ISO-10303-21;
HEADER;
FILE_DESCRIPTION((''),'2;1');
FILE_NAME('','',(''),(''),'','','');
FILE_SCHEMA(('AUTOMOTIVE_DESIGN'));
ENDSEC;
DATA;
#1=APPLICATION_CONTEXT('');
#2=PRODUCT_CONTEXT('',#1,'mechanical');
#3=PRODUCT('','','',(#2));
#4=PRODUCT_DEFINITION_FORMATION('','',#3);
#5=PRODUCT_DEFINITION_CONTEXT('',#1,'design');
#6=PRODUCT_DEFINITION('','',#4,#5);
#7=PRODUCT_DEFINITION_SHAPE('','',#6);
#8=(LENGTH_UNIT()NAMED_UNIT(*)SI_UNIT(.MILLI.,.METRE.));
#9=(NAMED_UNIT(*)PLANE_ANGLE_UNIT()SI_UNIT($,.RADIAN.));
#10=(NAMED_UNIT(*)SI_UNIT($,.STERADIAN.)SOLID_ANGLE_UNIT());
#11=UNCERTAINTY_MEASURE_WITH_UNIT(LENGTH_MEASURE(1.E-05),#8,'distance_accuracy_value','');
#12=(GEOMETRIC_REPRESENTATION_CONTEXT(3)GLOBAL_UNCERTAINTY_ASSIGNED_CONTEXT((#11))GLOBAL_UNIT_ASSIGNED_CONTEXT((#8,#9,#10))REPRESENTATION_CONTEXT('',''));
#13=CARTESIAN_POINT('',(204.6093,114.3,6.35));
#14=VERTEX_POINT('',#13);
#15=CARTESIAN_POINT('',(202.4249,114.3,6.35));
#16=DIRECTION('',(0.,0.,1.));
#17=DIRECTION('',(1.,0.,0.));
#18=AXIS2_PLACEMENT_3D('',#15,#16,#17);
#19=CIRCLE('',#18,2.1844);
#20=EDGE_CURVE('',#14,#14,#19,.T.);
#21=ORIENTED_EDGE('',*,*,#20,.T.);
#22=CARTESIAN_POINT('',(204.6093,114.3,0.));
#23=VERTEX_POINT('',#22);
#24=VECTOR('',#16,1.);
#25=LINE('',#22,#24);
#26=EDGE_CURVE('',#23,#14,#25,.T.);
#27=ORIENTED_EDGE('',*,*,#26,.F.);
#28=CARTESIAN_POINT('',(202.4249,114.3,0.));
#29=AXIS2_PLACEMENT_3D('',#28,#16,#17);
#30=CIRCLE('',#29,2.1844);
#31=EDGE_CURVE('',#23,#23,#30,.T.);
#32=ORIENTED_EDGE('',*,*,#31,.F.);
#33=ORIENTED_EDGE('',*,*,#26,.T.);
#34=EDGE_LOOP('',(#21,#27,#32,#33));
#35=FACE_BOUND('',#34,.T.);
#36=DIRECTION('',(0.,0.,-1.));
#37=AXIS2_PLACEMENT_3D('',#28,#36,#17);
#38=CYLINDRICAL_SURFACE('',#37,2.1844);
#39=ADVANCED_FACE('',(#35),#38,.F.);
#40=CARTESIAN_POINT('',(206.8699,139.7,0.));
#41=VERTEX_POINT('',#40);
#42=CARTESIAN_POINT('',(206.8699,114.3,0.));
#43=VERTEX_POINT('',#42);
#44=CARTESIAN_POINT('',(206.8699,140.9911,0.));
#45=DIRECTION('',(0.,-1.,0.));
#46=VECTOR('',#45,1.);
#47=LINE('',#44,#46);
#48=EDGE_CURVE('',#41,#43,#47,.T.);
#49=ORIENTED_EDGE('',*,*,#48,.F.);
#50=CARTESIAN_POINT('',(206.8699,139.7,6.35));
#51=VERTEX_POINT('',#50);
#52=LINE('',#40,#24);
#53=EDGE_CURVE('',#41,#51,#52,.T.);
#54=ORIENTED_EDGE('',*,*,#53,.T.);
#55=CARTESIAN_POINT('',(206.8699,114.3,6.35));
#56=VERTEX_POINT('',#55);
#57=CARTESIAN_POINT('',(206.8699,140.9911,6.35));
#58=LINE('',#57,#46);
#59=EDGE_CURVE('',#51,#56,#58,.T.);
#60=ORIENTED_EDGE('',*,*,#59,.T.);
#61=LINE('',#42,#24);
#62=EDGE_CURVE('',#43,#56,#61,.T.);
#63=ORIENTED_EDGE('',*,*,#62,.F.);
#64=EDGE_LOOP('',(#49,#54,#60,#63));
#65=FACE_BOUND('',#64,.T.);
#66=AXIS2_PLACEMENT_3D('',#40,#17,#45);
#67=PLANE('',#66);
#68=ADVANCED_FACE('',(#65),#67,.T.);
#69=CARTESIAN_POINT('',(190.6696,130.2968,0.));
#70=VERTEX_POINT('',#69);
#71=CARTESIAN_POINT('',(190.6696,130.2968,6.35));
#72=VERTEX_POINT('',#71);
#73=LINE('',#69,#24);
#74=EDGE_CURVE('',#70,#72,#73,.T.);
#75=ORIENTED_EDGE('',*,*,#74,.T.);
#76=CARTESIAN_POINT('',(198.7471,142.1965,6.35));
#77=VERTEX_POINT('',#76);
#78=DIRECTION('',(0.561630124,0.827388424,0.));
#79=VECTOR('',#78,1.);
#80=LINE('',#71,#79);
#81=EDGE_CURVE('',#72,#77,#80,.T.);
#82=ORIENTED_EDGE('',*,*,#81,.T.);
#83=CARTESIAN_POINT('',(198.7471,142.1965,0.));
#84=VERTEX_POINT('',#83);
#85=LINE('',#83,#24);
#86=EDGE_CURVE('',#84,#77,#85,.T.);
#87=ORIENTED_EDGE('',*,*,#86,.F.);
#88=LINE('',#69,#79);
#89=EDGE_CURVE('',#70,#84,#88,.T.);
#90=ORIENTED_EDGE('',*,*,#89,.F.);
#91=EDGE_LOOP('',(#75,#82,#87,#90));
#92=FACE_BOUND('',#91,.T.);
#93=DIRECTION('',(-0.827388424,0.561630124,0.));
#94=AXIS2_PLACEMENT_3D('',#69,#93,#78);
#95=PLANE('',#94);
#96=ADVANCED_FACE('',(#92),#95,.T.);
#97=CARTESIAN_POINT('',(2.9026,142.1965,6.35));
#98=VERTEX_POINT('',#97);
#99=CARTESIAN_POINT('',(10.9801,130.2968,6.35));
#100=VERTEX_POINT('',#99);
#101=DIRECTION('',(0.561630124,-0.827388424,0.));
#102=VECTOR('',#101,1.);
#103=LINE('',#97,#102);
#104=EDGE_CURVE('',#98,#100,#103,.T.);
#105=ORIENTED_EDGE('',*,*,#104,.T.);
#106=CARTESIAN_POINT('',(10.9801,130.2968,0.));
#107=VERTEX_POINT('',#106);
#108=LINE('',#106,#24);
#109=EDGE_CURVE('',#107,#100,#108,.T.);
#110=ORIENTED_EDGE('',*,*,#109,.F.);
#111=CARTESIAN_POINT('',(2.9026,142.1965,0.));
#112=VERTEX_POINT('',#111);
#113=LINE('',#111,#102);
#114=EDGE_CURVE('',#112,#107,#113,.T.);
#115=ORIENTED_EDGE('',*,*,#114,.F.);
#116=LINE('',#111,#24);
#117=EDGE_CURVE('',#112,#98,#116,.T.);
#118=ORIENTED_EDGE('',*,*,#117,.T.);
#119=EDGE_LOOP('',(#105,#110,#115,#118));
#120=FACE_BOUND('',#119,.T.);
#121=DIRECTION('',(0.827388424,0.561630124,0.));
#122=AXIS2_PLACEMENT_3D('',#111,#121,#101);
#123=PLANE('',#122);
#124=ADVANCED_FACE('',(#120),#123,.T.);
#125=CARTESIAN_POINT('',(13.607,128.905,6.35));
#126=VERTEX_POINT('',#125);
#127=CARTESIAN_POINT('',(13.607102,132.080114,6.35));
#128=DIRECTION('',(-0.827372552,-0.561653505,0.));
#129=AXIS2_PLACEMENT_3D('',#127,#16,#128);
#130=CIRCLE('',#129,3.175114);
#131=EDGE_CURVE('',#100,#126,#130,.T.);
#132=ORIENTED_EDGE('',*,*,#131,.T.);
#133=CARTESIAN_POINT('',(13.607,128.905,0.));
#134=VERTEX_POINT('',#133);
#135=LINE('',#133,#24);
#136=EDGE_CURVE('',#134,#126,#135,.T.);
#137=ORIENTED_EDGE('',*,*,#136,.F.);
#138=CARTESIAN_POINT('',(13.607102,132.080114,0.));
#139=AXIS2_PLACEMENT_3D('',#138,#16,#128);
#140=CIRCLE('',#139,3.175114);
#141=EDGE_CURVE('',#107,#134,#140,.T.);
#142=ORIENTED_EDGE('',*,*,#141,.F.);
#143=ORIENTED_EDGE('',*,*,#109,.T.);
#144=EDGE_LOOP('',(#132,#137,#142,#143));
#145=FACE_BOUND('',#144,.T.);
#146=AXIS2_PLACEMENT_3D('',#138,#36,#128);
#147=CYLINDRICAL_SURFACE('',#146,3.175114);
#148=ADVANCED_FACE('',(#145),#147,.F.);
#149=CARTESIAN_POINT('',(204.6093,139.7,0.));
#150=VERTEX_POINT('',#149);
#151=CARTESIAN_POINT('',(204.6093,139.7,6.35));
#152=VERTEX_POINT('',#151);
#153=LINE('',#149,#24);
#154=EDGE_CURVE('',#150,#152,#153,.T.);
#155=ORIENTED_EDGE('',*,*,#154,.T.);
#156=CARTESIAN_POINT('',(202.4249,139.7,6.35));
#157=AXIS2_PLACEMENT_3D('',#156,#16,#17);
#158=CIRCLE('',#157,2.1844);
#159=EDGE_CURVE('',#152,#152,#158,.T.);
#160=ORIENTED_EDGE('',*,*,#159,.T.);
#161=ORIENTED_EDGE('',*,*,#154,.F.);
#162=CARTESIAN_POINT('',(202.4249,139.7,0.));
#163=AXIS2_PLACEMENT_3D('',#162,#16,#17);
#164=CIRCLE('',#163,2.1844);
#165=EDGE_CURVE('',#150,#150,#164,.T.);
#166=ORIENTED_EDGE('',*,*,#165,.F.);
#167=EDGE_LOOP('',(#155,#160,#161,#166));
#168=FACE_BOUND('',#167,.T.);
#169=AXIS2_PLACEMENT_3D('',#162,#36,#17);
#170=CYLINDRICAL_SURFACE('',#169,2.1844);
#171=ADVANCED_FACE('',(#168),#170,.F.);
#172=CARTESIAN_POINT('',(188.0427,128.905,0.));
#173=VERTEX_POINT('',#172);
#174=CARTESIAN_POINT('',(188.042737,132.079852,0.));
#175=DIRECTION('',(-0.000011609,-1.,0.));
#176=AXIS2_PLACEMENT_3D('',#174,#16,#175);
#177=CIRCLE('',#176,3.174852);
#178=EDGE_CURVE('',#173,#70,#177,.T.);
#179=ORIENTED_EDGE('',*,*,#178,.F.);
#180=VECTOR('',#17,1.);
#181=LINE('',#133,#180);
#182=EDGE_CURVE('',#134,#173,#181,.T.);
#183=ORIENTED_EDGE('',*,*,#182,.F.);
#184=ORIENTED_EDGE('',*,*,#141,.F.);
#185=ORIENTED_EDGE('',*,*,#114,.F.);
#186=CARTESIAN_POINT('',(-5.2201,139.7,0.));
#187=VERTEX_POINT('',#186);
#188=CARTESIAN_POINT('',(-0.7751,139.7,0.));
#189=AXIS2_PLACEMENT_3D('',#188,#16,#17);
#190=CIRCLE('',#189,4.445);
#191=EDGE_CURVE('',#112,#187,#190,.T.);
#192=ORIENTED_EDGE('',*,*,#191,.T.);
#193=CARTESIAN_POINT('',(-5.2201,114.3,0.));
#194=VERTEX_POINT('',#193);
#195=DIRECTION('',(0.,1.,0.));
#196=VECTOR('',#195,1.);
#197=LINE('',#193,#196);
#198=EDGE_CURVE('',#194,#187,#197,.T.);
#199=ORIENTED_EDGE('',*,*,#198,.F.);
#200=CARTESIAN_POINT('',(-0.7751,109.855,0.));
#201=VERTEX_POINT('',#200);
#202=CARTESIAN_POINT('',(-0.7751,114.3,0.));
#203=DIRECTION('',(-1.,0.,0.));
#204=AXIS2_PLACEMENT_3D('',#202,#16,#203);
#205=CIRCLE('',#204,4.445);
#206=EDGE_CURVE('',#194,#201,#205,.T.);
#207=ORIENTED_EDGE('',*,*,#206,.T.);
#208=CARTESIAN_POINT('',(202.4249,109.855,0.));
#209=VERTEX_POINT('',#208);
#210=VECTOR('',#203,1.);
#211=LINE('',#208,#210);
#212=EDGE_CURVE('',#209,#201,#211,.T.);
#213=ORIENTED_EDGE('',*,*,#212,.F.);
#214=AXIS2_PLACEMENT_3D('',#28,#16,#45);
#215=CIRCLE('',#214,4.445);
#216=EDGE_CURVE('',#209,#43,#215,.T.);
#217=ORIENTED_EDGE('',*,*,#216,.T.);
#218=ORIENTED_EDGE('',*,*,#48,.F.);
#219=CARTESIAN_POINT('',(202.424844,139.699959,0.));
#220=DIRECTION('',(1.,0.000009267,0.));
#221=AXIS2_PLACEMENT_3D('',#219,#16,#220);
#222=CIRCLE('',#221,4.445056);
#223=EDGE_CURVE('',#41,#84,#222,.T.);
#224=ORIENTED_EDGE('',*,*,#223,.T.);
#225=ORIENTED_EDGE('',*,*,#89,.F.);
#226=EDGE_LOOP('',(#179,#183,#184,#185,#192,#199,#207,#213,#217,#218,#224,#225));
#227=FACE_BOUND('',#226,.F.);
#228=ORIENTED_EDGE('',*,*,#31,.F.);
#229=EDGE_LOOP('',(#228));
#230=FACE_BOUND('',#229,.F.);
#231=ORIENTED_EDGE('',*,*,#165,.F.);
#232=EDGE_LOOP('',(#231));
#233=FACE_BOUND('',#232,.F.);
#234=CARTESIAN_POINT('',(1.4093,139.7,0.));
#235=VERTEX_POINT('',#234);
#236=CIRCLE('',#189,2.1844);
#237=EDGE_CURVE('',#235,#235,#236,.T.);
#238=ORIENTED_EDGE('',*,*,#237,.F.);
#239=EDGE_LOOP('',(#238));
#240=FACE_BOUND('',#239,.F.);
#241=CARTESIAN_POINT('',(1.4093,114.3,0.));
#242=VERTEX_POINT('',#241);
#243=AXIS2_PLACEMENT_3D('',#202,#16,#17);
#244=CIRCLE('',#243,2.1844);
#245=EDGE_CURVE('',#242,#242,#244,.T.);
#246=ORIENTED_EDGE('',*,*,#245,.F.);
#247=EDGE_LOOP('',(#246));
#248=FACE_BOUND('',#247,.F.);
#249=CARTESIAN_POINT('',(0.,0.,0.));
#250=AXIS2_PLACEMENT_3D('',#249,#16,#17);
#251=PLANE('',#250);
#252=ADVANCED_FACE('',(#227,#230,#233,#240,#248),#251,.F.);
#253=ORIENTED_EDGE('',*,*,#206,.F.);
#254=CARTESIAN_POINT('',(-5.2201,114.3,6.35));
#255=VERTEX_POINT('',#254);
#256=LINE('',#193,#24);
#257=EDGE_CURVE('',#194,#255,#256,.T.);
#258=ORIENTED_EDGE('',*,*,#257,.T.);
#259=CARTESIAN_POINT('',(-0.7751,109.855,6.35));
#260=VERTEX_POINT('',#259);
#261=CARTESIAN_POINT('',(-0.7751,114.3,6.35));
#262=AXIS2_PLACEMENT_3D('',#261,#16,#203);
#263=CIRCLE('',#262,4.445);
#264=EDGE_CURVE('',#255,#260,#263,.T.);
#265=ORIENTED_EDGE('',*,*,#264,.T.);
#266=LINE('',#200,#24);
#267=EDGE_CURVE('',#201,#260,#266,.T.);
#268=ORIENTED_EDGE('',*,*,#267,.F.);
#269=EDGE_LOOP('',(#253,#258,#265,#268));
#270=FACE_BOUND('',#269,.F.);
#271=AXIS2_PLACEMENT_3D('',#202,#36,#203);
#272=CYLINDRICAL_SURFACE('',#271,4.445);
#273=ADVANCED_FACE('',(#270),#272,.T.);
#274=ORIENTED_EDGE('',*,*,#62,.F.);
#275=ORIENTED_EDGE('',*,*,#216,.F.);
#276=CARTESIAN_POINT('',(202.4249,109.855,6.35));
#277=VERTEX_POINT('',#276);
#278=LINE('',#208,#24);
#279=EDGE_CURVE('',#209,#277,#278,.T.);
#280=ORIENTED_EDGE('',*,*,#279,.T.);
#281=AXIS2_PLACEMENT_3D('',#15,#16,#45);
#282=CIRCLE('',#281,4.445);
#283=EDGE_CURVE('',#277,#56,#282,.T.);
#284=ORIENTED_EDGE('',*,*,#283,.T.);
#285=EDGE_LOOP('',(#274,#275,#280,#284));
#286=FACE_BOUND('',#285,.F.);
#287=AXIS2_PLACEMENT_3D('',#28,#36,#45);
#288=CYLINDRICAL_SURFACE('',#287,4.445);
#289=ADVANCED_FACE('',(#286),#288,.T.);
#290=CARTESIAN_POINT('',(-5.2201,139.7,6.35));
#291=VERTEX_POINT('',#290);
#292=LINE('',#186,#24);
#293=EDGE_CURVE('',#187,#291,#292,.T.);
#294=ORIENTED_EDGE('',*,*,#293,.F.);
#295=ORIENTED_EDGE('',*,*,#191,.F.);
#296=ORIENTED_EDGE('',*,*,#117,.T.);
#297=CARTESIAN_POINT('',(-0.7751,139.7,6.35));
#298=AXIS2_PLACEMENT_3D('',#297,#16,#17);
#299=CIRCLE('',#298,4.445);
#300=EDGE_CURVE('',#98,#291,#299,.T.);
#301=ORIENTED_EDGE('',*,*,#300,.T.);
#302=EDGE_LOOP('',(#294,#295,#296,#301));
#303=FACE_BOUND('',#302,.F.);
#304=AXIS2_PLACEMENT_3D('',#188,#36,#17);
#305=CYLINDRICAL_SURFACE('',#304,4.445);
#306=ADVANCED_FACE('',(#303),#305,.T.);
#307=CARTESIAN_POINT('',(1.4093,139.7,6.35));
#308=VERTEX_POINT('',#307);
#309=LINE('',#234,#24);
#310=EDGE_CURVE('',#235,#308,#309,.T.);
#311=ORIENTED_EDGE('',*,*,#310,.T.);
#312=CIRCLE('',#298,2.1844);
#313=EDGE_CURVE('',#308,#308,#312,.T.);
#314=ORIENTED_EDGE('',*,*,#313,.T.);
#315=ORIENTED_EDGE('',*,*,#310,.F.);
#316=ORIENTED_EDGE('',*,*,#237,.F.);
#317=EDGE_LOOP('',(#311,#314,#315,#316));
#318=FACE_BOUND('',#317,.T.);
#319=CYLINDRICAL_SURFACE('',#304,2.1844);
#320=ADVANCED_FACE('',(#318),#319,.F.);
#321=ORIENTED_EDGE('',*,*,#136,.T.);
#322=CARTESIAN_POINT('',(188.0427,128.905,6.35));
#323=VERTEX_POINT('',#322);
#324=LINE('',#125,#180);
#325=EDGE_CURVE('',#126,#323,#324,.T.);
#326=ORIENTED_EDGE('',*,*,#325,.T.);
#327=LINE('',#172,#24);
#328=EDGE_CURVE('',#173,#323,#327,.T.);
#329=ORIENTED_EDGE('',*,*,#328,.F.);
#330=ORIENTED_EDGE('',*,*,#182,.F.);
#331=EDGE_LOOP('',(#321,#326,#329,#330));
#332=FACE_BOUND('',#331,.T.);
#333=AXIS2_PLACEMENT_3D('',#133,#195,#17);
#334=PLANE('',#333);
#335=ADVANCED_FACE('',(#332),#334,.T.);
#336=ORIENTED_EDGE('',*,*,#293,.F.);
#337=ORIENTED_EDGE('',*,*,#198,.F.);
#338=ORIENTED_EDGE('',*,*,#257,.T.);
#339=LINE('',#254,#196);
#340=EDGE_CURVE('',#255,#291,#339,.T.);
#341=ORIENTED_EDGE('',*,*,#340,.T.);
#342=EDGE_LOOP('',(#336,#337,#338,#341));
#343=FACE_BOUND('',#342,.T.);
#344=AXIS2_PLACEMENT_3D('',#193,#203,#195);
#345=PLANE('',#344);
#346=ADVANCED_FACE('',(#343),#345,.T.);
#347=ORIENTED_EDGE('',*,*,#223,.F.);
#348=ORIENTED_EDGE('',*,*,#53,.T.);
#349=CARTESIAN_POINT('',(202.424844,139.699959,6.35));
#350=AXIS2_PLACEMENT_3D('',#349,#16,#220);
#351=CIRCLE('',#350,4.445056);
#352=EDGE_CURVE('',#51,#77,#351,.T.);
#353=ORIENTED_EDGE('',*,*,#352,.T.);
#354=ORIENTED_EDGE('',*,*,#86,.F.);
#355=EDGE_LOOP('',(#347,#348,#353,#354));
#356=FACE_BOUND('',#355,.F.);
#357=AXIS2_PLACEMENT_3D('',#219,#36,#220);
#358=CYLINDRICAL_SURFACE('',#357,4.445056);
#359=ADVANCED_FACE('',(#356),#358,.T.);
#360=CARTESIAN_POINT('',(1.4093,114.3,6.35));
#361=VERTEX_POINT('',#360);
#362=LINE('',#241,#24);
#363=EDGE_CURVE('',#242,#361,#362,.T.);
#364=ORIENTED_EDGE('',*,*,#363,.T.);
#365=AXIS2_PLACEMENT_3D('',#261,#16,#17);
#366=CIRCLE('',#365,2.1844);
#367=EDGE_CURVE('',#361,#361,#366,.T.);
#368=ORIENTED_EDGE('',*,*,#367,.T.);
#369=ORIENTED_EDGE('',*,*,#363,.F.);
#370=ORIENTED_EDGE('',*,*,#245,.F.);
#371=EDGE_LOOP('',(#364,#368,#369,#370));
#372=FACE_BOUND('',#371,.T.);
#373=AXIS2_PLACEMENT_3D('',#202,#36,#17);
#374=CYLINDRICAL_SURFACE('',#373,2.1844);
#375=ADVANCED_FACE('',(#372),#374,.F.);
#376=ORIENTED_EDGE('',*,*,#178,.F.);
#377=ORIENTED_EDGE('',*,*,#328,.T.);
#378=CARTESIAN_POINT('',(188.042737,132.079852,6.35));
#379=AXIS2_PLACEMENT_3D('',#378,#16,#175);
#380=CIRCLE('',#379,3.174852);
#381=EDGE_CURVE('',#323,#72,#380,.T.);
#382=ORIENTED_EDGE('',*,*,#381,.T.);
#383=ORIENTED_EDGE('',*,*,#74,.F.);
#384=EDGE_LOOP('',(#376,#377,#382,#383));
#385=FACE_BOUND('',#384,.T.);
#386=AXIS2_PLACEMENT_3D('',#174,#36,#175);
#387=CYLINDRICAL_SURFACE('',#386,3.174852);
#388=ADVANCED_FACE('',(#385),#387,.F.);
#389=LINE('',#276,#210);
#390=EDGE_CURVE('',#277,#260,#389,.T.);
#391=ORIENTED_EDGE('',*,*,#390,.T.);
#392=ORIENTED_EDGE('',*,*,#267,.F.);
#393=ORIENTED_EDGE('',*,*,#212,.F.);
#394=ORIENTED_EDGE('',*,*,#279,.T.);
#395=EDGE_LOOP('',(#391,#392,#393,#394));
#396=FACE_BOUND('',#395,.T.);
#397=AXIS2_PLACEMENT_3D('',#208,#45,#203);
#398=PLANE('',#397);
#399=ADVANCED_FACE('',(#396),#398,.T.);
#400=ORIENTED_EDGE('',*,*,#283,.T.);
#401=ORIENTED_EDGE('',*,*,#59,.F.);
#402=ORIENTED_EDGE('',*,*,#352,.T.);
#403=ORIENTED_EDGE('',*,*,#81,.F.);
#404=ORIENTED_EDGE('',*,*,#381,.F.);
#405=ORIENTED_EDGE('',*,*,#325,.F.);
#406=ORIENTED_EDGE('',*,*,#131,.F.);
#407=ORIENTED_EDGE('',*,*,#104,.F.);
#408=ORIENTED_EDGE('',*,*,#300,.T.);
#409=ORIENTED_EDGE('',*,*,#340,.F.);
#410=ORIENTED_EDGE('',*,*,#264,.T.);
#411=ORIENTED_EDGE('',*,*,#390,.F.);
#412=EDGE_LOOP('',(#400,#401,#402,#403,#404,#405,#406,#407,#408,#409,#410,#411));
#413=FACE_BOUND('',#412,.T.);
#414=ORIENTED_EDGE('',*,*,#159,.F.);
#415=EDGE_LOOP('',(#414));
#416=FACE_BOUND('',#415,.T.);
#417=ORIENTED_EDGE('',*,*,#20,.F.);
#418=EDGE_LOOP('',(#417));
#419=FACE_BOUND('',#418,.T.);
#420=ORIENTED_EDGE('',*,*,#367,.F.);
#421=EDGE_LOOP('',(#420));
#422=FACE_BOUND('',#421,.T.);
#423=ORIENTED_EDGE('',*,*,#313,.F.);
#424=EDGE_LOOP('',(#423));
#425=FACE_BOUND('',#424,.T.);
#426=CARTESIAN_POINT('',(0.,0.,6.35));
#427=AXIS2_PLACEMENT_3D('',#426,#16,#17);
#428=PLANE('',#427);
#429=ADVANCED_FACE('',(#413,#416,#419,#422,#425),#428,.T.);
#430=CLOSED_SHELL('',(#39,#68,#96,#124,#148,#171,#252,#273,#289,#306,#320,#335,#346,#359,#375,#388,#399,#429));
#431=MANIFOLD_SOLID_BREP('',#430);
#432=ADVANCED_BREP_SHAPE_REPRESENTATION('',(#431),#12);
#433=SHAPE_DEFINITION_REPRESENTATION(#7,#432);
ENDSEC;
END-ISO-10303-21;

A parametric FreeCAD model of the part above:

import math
import FreeCAD as App
import Part
import Sketcher

V = App.Vector
Q = App.Units.Quantity

doc = App.newDocument("Part")
params = doc.addObject("Spreadsheet::Sheet", "Params")
for row, (alias, value) in enumerate([
    ("sketch1_radius", "0.175 in"),
    ("sketch1_radius2", "0.125 in"),
    ("sketch1_width", "8 in"),
    ("sketch1_height", "1 in"),
    ("sketch1_diameter", "0.172 in"),
    ("pad1_length", "0.25 in"),
], start=1):
    params.set(f"A{row}", alias)
    params.set(f"B{row}", "=" + value)
    params.setAlias(f"B{row}", alias)

body = doc.addObject("PartDesign::Body", "Body")

# Sketch on XY plane
sketch1 = body.newObject("Sketcher::SketchObject", "Sketch")
sketch1.AttachmentSupport = (doc.getObject("XY_Plane"), [""])
sketch1.MapMode = "FlatFace"
sketch1.addGeometry(Part.LineSegment(V(-5.2, 139.7, 0), V(-5.2, 114.3, 0)), False)
sketch1.addGeometry(Part.ArcOfCircle(Part.Circle(V(-0.8, 114.3, 0), V(0, 0, 1), 4.4), math.radians(180), math.radians(270)), False)
sketch1.addGeometry(Part.LineSegment(V(-0.8, 109.9, 0), V(202.4, 109.9, 0)), False)
sketch1.addGeometry(Part.ArcOfCircle(Part.Circle(V(202.4, 114.3, 0), V(0, 0, 1), 4.4), math.radians(-90), math.radians(0)), False)
sketch1.addGeometry(Part.LineSegment(V(206.9, 114.3, 0), V(206.9, 139.7, 0)), False)
sketch1.addGeometry(Part.ArcOfCircle(Part.Circle(V(202.4, 139.7, 0), V(0, 0, 1), 4.4), math.radians(0), math.radians(146)), False)
sketch1.addGeometry(Part.LineSegment(V(198.7, 142.2, 0), V(190.7, 130.3, 0)), False)
sketch1.addGeometry(Part.ArcOfCircle(Part.Circle(V(188, 132.1, 0), V(0, 0, 1), 3.2), math.radians(-90), math.radians(-34)), False)
sketch1.addGeometry(Part.LineSegment(V(188, 128.9, 0), V(13.6, 128.9, 0)), False)
sketch1.addGeometry(Part.ArcOfCircle(Part.Circle(V(13.6, 132.1, 0), V(0, 0, 1), 3.2), math.radians(-146), math.radians(-90)), False)
sketch1.addGeometry(Part.LineSegment(V(11, 130.3, 0), V(2.9, 142.2, 0)), False)
sketch1.addGeometry(Part.ArcOfCircle(Part.Circle(V(-0.8, 139.7, 0), V(0, 0, 1), 4.4), math.radians(34), math.radians(180)), False)
sketch1.addGeometry(Part.Circle(V(-0.8, 114.3, 0), V(0, 0, 1), 2.2), False)
sketch1.addGeometry(Part.Circle(V(202.4, 114.3, 0), V(0, 0, 1), 2.2), False)
sketch1.addGeometry(Part.Circle(V(202.4, 139.7, 0), V(0, 0, 1), 2.2), False)
sketch1.addGeometry(Part.Circle(V(-0.8, 139.7, 0), V(0, 0, 1), 2.2), False)
sketch1.addConstraint(Sketcher.Constraint("Tangent", 0, 2, 1, 1))
sketch1.addConstraint(Sketcher.Constraint("Tangent", 1, 2, 2, 1))
sketch1.addConstraint(Sketcher.Constraint("Tangent", 2, 2, 3, 1))
sketch1.addConstraint(Sketcher.Constraint("Tangent", 3, 2, 4, 1))
sketch1.addConstraint(Sketcher.Constraint("Tangent", 4, 2, 5, 1))
sketch1.addConstraint(Sketcher.Constraint("Tangent", 5, 2, 6, 1))
sketch1.addConstraint(Sketcher.Constraint("Tangent", 6, 2, 7, 2))
sketch1.addConstraint(Sketcher.Constraint("Tangent", 7, 1, 8, 1))
sketch1.addConstraint(Sketcher.Constraint("Tangent", 8, 2, 9, 2))
sketch1.addConstraint(Sketcher.Constraint("Tangent", 9, 1, 10, 1))
sketch1.addConstraint(Sketcher.Constraint("Tangent", 10, 2, 11, 1))
sketch1.addConstraint(Sketcher.Constraint("Tangent", 11, 2, 0, 1))
sketch1.addConstraint(Sketcher.Constraint("Vertical", 0))
sketch1.addConstraint(Sketcher.Constraint("Horizontal", 2))
sketch1.addConstraint(Sketcher.Constraint("Vertical", 4))
sketch1.addConstraint(Sketcher.Constraint("Horizontal", 8))
sketch1.addConstraint(Sketcher.Constraint("Coincident", 12, 3, 1, 3))
sketch1.addConstraint(Sketcher.Constraint("Coincident", 13, 3, 3, 3))
sketch1.addConstraint(Sketcher.Constraint("Coincident", 14, 3, 5, 3))
sketch1.addConstraint(Sketcher.Constraint("Coincident", 15, 3, 11, 3))
sketch1.addConstraint(Sketcher.Constraint("Equal", 1, 3))
sketch1.addConstraint(Sketcher.Constraint("Equal", 3, 5))
sketch1.addConstraint(Sketcher.Constraint("Equal", 7, 9))
sketch1.addConstraint(Sketcher.Constraint("Equal", 5, 11))
sketch1.addConstraint(Sketcher.Constraint("Equal", 12, 13))
sketch1.addConstraint(Sketcher.Constraint("Equal", 13, 14))
sketch1.addConstraint(Sketcher.Constraint("Equal", 14, 15))
sketch1.addConstraint(Sketcher.Constraint("Horizontal", 5, 3, 11, 3))
sketch1.addConstraint(Sketcher.Constraint("Horizontal", 6, 2, 9, 1))
sketch1.addConstraint(Sketcher.Constraint("Radius", 1, Q("0.175 in")))
sketch1.addConstraint(Sketcher.Constraint("Radius", 7, Q("0.125 in")))
sketch1.addConstraint(Sketcher.Constraint("DistanceX", 2, 1, 2, 2, Q("8 in")))
sketch1.addConstraint(Sketcher.Constraint("DistanceY", 0, 2, 0, 1, Q("1 in")))
sketch1.addConstraint(Sketcher.Constraint("Diameter", 12, Q("0.172 in")))
sketch1.addConstraint(Sketcher.Constraint("DistanceY", -1, 1, 1, 3, Q("4.5 in")))
sketch1.addConstraint(Sketcher.Constraint("DistanceY", -1, 1, 7, 3, Q("5.2 in")))
sketch1.addConstraint(Sketcher.Constraint("DistanceX", 10, 2, 9, 1, Q("0.318 in")))
sketch1.addConstraint(Sketcher.Constraint("DistanceX", -1, 1, 9, 3, Q("0.5357 in")))
sketch1.setExpression("Constraints[29]", "Params.sketch1_radius")
sketch1.setExpression("Constraints[30]", "Params.sketch1_radius2")
sketch1.setExpression("Constraints[31]", "Params.sketch1_width")
sketch1.setExpression("Constraints[32]", "Params.sketch1_height")
sketch1.setExpression("Constraints[33]", "Params.sketch1_diameter")
pad1 = body.newObject("PartDesign::Pad", "Pad")
pad1.Profile = sketch1
pad1.setExpression("Length", "Params.pad1_length")

doc.recompute()
